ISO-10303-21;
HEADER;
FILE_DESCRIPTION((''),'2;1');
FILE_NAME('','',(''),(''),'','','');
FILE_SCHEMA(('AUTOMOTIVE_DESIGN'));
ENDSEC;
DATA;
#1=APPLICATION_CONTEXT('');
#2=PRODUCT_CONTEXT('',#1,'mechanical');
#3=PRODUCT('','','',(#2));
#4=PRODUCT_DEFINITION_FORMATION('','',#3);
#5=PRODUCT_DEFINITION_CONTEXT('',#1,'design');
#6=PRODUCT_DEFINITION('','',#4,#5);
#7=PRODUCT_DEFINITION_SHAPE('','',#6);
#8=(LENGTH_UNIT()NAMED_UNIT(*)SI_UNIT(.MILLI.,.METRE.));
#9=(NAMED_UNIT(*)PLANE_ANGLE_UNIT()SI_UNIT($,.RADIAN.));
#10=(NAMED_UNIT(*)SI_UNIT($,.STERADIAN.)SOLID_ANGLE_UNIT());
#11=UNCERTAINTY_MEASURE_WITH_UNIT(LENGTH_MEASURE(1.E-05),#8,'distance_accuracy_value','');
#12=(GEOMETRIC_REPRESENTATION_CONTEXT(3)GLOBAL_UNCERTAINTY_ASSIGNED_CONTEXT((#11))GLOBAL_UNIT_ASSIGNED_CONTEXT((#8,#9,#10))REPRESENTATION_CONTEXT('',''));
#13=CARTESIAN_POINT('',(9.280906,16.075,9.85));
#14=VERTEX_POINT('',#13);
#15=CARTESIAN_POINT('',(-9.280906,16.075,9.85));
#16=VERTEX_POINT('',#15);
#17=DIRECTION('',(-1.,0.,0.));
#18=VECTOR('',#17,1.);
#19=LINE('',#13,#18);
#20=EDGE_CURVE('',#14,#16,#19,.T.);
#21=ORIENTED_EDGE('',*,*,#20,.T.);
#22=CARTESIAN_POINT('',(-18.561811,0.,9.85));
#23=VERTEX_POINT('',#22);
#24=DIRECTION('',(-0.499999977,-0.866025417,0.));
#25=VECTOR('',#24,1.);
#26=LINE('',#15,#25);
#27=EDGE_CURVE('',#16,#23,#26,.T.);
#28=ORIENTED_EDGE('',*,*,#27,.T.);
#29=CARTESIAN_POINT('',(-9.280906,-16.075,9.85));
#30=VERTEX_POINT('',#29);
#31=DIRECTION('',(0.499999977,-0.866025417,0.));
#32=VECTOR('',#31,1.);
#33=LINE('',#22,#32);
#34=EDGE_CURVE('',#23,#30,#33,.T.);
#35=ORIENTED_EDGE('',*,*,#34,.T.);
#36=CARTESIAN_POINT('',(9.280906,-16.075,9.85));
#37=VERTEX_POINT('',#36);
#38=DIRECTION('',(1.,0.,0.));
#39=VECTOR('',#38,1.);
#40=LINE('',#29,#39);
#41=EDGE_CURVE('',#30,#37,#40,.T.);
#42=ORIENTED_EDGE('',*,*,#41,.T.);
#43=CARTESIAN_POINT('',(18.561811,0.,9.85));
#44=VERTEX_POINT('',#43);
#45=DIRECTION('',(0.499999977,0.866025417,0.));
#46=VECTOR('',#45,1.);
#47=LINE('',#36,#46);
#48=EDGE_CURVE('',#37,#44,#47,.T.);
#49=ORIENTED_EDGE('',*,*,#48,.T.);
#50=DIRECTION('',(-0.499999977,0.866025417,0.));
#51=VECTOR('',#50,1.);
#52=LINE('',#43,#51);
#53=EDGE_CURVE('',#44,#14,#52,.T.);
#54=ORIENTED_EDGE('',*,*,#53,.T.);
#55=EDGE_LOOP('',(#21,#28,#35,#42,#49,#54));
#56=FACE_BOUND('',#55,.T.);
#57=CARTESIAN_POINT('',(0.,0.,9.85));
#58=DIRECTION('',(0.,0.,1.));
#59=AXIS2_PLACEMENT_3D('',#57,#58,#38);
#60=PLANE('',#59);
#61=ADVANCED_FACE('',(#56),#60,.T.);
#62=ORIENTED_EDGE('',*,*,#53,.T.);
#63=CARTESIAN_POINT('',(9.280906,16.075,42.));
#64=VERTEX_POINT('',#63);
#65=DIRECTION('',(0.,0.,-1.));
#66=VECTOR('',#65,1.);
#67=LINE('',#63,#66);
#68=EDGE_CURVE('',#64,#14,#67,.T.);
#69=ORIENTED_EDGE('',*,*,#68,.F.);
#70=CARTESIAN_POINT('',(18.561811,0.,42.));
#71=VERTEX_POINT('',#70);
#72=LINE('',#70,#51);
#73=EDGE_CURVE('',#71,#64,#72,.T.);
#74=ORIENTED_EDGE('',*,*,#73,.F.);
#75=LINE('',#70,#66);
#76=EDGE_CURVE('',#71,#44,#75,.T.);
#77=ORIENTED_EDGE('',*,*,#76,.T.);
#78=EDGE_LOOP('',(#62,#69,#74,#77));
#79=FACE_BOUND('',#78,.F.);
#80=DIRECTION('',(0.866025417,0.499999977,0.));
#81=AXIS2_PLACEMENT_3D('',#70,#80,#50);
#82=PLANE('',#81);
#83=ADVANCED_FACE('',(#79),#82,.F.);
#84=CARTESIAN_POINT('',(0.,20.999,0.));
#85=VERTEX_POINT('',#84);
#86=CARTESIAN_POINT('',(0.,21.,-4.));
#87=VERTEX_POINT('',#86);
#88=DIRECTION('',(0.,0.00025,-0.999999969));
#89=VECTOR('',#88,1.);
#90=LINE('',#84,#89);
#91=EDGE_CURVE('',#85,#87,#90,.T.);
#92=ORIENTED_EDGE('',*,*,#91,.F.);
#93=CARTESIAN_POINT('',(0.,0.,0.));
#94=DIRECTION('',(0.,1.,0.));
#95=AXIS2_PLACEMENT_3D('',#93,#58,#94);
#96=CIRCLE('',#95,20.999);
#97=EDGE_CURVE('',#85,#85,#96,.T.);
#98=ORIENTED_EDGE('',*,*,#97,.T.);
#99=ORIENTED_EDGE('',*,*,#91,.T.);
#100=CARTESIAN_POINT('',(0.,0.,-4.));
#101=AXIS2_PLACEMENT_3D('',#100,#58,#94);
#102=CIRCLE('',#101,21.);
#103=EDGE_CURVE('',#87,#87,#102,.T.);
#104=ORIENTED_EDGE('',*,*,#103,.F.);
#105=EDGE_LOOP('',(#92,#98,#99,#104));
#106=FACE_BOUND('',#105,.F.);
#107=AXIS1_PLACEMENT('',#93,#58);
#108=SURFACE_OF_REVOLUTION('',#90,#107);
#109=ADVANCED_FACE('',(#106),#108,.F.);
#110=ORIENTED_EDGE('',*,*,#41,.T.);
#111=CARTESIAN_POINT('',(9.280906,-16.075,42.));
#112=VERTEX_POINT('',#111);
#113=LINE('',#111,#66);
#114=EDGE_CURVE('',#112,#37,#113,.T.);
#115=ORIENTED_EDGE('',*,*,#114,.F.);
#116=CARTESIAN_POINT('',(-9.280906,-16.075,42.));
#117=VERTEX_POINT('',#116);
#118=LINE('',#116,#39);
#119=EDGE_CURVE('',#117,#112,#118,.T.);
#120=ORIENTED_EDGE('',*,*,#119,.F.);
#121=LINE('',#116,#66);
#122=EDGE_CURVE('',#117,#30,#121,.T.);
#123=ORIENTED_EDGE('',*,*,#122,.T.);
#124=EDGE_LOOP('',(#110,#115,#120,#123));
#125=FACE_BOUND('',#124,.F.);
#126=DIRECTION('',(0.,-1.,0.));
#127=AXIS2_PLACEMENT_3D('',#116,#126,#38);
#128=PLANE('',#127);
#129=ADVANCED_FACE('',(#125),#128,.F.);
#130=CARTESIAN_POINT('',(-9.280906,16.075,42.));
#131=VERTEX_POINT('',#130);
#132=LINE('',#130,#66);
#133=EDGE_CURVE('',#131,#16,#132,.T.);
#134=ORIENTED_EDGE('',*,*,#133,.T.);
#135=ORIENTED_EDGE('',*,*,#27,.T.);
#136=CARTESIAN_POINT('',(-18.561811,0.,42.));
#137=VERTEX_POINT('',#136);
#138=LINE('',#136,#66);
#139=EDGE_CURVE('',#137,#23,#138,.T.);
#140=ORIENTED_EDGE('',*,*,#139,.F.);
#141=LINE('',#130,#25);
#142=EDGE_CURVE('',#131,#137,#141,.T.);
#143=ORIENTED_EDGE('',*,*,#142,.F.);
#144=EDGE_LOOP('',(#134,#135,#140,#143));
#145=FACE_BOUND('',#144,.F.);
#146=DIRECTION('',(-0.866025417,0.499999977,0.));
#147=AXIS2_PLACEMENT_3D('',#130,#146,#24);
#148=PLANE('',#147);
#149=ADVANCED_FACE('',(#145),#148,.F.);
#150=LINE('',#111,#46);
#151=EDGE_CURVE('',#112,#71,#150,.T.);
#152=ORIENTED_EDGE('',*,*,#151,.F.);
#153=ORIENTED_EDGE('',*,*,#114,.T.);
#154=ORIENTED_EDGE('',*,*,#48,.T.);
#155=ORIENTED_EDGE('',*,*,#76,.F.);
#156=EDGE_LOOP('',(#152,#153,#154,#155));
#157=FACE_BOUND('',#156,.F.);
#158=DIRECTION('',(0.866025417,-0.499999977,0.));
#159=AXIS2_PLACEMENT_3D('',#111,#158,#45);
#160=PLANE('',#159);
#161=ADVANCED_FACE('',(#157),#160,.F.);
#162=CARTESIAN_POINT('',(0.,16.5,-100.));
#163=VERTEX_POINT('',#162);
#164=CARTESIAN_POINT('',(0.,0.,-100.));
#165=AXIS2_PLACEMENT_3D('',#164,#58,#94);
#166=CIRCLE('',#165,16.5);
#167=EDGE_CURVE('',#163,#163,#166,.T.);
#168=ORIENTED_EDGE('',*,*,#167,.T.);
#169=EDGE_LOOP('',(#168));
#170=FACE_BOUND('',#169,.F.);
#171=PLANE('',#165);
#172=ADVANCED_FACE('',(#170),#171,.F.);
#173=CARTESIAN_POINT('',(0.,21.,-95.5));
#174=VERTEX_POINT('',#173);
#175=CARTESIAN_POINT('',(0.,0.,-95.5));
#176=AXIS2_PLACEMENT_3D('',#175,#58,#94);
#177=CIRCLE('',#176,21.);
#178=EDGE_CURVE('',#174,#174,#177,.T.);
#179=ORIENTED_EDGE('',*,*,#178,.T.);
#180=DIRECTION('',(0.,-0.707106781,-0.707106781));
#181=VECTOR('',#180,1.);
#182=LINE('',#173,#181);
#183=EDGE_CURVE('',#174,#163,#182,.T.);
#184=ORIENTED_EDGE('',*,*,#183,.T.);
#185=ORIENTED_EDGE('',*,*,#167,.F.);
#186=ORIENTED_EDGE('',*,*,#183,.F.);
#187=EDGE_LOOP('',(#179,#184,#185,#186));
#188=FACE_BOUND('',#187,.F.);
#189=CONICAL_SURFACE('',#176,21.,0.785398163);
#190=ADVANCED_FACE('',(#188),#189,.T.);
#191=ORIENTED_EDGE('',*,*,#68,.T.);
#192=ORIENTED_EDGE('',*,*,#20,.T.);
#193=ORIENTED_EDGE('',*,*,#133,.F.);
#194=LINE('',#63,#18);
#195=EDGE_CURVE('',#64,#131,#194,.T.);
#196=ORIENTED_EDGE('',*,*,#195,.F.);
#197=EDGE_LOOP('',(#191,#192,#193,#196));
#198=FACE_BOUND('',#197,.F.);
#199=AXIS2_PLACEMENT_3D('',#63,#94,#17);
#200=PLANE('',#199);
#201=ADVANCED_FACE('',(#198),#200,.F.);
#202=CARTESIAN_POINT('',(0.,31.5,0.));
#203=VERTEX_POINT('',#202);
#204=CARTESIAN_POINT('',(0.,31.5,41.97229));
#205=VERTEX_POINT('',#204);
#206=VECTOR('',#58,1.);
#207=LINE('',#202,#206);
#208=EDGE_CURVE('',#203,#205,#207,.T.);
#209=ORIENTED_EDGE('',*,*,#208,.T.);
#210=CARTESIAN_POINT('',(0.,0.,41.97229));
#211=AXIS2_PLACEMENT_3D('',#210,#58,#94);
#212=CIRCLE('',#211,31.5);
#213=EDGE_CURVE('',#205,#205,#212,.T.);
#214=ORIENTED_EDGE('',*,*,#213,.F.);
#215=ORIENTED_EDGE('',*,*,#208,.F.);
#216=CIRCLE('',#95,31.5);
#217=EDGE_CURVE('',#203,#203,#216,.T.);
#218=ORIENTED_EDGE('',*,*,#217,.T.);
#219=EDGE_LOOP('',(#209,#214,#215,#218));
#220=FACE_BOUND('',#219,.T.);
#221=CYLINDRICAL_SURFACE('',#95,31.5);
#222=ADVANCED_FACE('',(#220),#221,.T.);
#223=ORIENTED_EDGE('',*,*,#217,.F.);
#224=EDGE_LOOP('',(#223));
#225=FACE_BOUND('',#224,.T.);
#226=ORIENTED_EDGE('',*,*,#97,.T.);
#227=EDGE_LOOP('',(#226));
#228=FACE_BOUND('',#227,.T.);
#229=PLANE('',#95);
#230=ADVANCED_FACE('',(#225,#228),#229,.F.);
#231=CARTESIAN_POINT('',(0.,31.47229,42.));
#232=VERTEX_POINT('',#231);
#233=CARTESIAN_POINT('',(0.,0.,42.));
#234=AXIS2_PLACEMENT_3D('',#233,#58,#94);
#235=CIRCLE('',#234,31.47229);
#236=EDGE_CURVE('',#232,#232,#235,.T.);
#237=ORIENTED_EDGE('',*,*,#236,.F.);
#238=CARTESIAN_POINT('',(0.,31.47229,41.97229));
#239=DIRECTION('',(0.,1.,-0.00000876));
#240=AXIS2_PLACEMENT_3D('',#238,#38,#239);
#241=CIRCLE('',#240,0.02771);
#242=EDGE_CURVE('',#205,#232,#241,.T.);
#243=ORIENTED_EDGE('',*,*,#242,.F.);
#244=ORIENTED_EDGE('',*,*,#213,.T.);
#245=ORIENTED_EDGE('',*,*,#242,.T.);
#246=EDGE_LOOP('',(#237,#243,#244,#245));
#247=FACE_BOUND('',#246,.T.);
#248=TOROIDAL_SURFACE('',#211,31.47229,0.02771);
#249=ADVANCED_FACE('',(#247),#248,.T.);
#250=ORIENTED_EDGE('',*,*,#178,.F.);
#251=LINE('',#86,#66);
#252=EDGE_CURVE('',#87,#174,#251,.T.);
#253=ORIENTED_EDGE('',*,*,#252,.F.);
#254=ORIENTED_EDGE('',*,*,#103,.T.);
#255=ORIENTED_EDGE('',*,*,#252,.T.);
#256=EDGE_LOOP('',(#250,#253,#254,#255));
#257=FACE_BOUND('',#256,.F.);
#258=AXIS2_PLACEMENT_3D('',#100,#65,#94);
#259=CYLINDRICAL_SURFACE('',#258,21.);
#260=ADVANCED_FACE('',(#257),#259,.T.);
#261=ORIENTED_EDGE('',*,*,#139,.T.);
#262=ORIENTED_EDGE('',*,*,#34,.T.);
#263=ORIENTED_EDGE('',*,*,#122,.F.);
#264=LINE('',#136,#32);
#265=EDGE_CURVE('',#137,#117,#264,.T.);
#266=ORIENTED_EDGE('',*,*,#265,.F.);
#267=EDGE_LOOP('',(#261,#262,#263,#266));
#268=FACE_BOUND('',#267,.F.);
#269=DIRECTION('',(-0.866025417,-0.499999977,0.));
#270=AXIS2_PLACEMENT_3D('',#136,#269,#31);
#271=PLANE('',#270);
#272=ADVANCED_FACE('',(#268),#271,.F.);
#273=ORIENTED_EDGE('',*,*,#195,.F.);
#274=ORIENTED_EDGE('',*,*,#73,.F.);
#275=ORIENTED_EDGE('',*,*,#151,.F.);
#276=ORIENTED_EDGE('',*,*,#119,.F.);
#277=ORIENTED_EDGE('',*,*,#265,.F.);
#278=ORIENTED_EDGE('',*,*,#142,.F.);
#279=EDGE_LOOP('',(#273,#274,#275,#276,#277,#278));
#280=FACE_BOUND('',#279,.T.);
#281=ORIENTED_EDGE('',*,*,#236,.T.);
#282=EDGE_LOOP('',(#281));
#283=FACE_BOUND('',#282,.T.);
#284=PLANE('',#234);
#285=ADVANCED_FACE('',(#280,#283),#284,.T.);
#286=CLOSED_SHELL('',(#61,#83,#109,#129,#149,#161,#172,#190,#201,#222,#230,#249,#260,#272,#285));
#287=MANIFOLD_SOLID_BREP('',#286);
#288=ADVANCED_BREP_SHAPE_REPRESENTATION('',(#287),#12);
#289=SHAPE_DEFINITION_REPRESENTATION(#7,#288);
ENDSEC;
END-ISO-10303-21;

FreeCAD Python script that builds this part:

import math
import FreeCAD as App
import Part
import Sketcher
from FreeCAD import Vector
Q = App.Units.Quantity


def add_polygon(sketch, points):
    """Adds a closed chain of lines whose ends are joined by coincident constraints."""
    first, n = sketch.GeometryCount, len(points)
    for a, b in zip(points, points[1:] + points[:1]):
        sketch.addGeometry(Part.LineSegment(App.Vector(*a, 0), App.Vector(*b, 0)), False)
    for i in range(n):
        sketch.addConstraint(Sketcher.Constraint("Coincident", first + i, 2, first + (i + 1) % n, 1))

doc = App.newDocument("Part")
body = doc.addObject("PartDesign::Body", "Body")

# Sketch on YZ plane
sketch1 = body.newObject("Sketcher::SketchObject", "Sketch")
sketch1.AttachmentSupport = (doc.getObject("YZ_Plane"), [""])
sketch1.MapMode = "FlatFace"
sketch1.addGeometry([
    Part.LineSegment(Vector(20.999, 0, 0), Vector(31.5, 0, 0)),  # 0
    Part.LineSegment(Vector(31.5, 0, 0), Vector(31.5, 41.972, 0)),  # 1
    Part.ArcOfCircle(Part.Circle(Vector(31.472, 41.972, 0), Vector(0, 0, 1), 0.028), math.radians(0), math.radians(90)),  # 2
    Part.LineSegment(Vector(31.472, 42, 0), Vector(0, 42, 0)),  # 3
    Part.LineSegment(Vector(0, 42, 0), Vector(0, -100, 0)),  # 4
    Part.LineSegment(Vector(0, -100, 0), Vector(16.5, -100, 0)),  # 5
    Part.LineSegment(Vector(16.5, -100, 0), Vector(21, -95.5, 0)),  # 6
    Part.LineSegment(Vector(21, -95.5, 0), Vector(21, -4, 0)),  # 7
    Part.LineSegment(Vector(21, -4, 0), Vector(20.999, 0, 0)),  # 8
], False)
sketch1.addConstraint([
    Sketcher.Constraint("Coincident", 0, 2, 1, 1),
    Sketcher.Constraint("Coincident", 1, 2, 2, 1),
    Sketcher.Constraint("Coincident", 2, 2, 3, 1),
    Sketcher.Constraint("Coincident", 3, 2, 4, 1),
    Sketcher.Constraint("Coincident", 4, 2, 5, 1),
    Sketcher.Constraint("Coincident", 5, 2, 6, 1),
    Sketcher.Constraint("Coincident", 6, 2, 7, 1),
    Sketcher.Constraint("Coincident", 7, 2, 8, 1),
    Sketcher.Constraint("Coincident", 8, 2, 0, 1),
    Sketcher.Constraint("Horizontal", 0),
    Sketcher.Constraint("Vertical", 1),
    Sketcher.Constraint("Horizontal", 3),
    Sketcher.Constraint("Vertical", 4),
    Sketcher.Constraint("Horizontal", 5),
    Sketcher.Constraint("Vertical", 7),
    Sketcher.Constraint("PointOnObject", 0, 2, -1),
    Sketcher.Constraint("PointOnObject", 3, 2, -2),
    Sketcher.Constraint("Horizontal", 2, 3, 1, 2),
    Sketcher.Constraint("DistanceY", 4, 2, 4, 1, Q("142 mm")),
    Sketcher.Constraint("Angle", 6, Q("45 deg")),
    Sketcher.Constraint("Distance", 8, Q("4 mm")),
    Sketcher.Constraint("DistanceX", 5, 1, 5, 2, Q("16.5 mm")),
    Sketcher.Constraint("DistanceY", 7, 1, 7, 2, Q("91.5 mm")),
    Sketcher.Constraint("DistanceY", -1, 1, 2, 2, Q("42 mm")),
    Sketcher.Constraint("DistanceX", 5, 2, 0, 2, Q("15 mm")),
    Sketcher.Constraint("DistanceX", 0, 1, 0, 2, Q("10.501 mm")),
    Sketcher.Constraint("Radius", 2, Q("0.02771 mm")),
    Sketcher.Constraint("DistanceX", 3, 2, 3, 1, Q("31.47229 mm")),
])
revolution = body.newObject("PartDesign::Revolution", "Revolution")
revolution.Profile = sketch1
revolution.ReferenceAxis = (sketch1, ["V_Axis"])
revolution.Angle = 360

# Sketch on XY plane
sketch2 = body.newObject("Sketcher::SketchObject", "Sketch001")
sketch2.AttachmentSupport = (doc.getObject("XY_Plane"), [""])
sketch2.MapMode = "FlatFace"
sketch2.AttachmentOffset = App.Placement(Vector(0, 0, 42), App.Rotation())
add_polygon(sketch2, [(19, 0), (9, 16), (-9, 16), (-19, 0), (-9, -16), (9, -16)])  # lines 0-5
sketch2.addConstraint([
    Sketcher.Constraint("Horizontal", 1),
    Sketcher.Constraint("Horizontal", 4),
    Sketcher.Constraint("Symmetric", 0, 2, 3, 2, -1, 1),
    Sketcher.Constraint("Symmetric", 2, 2, 5, 2, -1, 1),
    Sketcher.Constraint("PointOnObject", 2, 2, -1),
    Sketcher.Constraint("Parallel", 2, 5),
    Sketcher.Constraint("Vertical", 1, 2, 3, 2),
    Sketcher.Constraint("Angle", 0, Q("119.999998 deg")),
    Sketcher.Constraint("DistanceY", 3, 2, 1, 2, Q("32.15 mm")),
    Sketcher.Constraint("DistanceX", 1, 2, 1, 1, Q("18.561812 mm")),
])
pocket1 = body.newObject("PartDesign::Pocket", "Pocket")
pocket1.Profile = sketch2
pocket1.Length = 32.15

doc.recompute()
